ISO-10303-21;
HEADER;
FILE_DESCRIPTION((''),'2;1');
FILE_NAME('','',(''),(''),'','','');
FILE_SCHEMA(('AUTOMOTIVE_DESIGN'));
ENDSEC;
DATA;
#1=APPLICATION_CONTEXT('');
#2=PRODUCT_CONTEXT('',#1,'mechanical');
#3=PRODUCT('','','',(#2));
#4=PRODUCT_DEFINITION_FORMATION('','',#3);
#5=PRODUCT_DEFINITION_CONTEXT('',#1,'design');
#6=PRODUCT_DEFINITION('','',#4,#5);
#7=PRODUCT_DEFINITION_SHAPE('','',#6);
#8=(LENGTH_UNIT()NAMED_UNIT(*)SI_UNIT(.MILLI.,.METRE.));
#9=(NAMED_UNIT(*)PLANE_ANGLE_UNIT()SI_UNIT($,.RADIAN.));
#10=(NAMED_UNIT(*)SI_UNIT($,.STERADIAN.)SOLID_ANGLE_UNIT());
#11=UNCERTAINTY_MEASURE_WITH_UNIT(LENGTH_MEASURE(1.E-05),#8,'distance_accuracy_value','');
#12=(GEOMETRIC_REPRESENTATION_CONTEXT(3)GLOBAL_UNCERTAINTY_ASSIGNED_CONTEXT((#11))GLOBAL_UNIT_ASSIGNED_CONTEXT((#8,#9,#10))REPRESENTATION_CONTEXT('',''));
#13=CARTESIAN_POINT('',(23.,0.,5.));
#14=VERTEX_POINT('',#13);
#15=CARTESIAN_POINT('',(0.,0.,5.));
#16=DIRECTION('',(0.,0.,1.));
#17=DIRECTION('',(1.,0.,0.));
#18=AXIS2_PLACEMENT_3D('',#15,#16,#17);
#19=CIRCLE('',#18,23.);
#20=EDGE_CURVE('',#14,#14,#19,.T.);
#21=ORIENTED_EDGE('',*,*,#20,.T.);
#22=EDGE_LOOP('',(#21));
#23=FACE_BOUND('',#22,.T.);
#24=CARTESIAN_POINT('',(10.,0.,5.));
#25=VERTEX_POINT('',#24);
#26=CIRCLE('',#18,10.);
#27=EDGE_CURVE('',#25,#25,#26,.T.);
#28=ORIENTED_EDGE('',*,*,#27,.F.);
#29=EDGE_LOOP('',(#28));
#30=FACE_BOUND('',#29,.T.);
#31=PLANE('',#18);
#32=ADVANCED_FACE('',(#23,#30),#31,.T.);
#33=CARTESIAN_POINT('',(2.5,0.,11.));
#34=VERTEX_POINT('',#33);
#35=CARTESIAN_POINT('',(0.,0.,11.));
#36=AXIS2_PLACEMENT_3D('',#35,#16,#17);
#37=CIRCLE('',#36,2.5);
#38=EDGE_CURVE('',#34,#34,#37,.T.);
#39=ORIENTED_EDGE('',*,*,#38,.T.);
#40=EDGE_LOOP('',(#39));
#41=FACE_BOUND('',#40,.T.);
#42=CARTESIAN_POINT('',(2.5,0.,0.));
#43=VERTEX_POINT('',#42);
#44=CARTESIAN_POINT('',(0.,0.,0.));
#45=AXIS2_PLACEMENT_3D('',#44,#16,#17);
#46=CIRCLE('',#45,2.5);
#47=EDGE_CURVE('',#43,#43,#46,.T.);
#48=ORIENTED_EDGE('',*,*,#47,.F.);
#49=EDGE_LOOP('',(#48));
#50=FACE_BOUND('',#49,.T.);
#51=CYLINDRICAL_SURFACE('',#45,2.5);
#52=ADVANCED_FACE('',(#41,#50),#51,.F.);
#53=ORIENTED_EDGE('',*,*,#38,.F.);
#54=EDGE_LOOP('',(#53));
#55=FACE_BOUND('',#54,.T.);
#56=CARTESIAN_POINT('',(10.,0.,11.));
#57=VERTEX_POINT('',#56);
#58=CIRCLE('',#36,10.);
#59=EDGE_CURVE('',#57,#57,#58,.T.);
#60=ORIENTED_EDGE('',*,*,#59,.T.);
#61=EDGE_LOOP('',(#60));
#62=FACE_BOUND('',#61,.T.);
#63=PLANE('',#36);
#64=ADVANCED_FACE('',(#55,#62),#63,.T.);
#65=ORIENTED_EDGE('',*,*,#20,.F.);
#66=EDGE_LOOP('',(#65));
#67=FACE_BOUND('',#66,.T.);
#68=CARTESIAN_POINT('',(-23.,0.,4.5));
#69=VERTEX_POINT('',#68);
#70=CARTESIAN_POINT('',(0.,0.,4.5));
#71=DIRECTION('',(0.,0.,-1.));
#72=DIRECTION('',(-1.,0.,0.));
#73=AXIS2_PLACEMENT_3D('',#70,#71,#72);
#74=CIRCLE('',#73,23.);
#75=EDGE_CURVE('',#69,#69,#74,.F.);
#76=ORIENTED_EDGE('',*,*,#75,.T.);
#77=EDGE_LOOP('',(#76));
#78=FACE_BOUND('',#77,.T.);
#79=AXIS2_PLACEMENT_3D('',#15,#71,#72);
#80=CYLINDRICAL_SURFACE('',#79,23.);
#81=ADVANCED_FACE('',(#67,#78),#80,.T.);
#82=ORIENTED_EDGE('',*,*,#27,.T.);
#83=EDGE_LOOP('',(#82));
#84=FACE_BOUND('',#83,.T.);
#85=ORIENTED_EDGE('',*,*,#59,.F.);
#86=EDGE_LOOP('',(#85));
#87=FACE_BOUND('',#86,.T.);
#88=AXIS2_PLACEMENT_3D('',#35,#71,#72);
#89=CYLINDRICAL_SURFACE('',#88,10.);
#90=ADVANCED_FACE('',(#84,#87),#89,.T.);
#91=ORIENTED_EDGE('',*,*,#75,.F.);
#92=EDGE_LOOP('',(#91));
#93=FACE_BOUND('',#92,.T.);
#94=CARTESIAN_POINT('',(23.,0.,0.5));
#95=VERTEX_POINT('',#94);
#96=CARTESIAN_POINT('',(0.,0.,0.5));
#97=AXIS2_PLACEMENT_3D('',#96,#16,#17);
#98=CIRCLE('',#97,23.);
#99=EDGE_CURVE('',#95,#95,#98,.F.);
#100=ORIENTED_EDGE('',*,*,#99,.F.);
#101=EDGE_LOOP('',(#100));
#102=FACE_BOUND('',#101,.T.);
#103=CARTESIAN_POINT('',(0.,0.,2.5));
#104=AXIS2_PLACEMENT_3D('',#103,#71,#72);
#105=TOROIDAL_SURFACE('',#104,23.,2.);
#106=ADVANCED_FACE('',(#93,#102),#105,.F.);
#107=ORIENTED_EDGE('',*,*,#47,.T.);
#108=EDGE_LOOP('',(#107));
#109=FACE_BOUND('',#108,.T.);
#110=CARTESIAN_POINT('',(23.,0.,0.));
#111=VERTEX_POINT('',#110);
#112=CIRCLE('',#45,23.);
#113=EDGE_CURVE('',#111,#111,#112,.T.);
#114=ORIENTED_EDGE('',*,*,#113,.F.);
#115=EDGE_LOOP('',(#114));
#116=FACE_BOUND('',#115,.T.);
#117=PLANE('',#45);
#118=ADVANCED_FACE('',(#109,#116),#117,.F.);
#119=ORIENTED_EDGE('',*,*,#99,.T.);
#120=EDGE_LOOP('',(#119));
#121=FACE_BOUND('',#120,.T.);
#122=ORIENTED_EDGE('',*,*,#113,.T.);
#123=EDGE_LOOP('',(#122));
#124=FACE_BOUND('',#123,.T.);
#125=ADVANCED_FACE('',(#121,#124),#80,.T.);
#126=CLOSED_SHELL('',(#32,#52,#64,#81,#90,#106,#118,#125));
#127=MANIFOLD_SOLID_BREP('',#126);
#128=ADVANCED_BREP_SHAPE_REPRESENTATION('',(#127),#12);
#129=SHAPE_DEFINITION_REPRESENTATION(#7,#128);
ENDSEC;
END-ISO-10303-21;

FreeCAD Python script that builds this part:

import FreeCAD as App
import Part
import Sketcher

V = App.Vector
Q = App.Units.Quantity

doc = App.newDocument("Part")
body = doc.addObject("PartDesign::Body", "Body")

# Sketch on XY plane
sketch1 = body.newObject("Sketcher::SketchObject", "Sketch")
sketch1.AttachmentSupport = (doc.getObject("XY_Plane"), [""])
sketch1.MapMode = "FlatFace"
sketch1.addGeometry(Part.Circle(V(0, 0, 0), V(0, 0, 1), 23), False)
sketch1.addConstraint([
    Sketcher.Constraint("Coincident", 0, 3, -1, 1),
    Sketcher.Constraint("Diameter", 0, Q("46 mm")),
])
pad1 = body.newObject("PartDesign::Pad", "Pad")
pad1.Profile = sketch1
pad1.Length = 5

# Sketch on XY plane
sketch2 = body.newObject("Sketcher::SketchObject", "Sketch001")
sketch2.AttachmentSupport = (doc.getObject("XY_Plane"), [""])
sketch2.MapMode = "FlatFace"
sketch2.AttachmentOffset = App.Placement(V(0, 0, 5), App.Rotation())
sketch2.addGeometry(Part.Circle(V(0, 0, 0), V(0, 0, 1), 10), False)
sketch2.addConstraint([
    Sketcher.Constraint("Coincident", 0, 3, -1, 1),
    Sketcher.Constraint("Diameter", 0, Q("20 mm")),
])
pad2 = body.newObject("PartDesign::Pad", "Pad001")
pad2.Profile = sketch2
pad2.Length = 6

# Sketch on XY plane
sketch3 = body.newObject("Sketcher::SketchObject", "Sketch002")
sketch3.AttachmentSupport = (doc.getObject("XY_Plane"), [""])
sketch3.MapMode = "FlatFace"
sketch3.AttachmentOffset = App.Placement(V(0, 0, 11), App.Rotation())
sketch3.addGeometry(Part.Circle(V(0, 0, 0), V(0, 0, 1), 2.5), False)
sketch3.addConstraint([
    Sketcher.Constraint("Coincident", 0, 3, -1, 1),
    Sketcher.Constraint("Diameter", 0, Q("5 mm")),
])
pocket1 = body.newObject("PartDesign::Pocket", "Pocket")
pocket1.Profile = sketch3
pocket1.Type = "ThroughAll"

# Sketch on YZ plane
sketch4 = body.newObject("Sketcher::SketchObject", "Sketch003")
sketch4.AttachmentSupport = (doc.getObject("YZ_Plane"), [""])
sketch4.MapMode = "FlatFace"
sketch4.addGeometry(Part.Circle(V(23, 2.5, 0), V(0, 0, 1), 2), False)
sketch4.addConstraint([
    Sketcher.Constraint("Diameter", 0, Q("4 mm")),
    Sketcher.Constraint("DistanceX", -1, 1, 0, 3, Q("23 mm")),
    Sketcher.Constraint("DistanceY", -1, 1, 0, 3, Q("2.5 mm")),
])
groove = body.newObject("PartDesign::Groove", "Groove")
groove.Profile = sketch4
groove.ReferenceAxis = (sketch4, ["V_Axis"])
groove.Angle = 360

doc.recompute()
